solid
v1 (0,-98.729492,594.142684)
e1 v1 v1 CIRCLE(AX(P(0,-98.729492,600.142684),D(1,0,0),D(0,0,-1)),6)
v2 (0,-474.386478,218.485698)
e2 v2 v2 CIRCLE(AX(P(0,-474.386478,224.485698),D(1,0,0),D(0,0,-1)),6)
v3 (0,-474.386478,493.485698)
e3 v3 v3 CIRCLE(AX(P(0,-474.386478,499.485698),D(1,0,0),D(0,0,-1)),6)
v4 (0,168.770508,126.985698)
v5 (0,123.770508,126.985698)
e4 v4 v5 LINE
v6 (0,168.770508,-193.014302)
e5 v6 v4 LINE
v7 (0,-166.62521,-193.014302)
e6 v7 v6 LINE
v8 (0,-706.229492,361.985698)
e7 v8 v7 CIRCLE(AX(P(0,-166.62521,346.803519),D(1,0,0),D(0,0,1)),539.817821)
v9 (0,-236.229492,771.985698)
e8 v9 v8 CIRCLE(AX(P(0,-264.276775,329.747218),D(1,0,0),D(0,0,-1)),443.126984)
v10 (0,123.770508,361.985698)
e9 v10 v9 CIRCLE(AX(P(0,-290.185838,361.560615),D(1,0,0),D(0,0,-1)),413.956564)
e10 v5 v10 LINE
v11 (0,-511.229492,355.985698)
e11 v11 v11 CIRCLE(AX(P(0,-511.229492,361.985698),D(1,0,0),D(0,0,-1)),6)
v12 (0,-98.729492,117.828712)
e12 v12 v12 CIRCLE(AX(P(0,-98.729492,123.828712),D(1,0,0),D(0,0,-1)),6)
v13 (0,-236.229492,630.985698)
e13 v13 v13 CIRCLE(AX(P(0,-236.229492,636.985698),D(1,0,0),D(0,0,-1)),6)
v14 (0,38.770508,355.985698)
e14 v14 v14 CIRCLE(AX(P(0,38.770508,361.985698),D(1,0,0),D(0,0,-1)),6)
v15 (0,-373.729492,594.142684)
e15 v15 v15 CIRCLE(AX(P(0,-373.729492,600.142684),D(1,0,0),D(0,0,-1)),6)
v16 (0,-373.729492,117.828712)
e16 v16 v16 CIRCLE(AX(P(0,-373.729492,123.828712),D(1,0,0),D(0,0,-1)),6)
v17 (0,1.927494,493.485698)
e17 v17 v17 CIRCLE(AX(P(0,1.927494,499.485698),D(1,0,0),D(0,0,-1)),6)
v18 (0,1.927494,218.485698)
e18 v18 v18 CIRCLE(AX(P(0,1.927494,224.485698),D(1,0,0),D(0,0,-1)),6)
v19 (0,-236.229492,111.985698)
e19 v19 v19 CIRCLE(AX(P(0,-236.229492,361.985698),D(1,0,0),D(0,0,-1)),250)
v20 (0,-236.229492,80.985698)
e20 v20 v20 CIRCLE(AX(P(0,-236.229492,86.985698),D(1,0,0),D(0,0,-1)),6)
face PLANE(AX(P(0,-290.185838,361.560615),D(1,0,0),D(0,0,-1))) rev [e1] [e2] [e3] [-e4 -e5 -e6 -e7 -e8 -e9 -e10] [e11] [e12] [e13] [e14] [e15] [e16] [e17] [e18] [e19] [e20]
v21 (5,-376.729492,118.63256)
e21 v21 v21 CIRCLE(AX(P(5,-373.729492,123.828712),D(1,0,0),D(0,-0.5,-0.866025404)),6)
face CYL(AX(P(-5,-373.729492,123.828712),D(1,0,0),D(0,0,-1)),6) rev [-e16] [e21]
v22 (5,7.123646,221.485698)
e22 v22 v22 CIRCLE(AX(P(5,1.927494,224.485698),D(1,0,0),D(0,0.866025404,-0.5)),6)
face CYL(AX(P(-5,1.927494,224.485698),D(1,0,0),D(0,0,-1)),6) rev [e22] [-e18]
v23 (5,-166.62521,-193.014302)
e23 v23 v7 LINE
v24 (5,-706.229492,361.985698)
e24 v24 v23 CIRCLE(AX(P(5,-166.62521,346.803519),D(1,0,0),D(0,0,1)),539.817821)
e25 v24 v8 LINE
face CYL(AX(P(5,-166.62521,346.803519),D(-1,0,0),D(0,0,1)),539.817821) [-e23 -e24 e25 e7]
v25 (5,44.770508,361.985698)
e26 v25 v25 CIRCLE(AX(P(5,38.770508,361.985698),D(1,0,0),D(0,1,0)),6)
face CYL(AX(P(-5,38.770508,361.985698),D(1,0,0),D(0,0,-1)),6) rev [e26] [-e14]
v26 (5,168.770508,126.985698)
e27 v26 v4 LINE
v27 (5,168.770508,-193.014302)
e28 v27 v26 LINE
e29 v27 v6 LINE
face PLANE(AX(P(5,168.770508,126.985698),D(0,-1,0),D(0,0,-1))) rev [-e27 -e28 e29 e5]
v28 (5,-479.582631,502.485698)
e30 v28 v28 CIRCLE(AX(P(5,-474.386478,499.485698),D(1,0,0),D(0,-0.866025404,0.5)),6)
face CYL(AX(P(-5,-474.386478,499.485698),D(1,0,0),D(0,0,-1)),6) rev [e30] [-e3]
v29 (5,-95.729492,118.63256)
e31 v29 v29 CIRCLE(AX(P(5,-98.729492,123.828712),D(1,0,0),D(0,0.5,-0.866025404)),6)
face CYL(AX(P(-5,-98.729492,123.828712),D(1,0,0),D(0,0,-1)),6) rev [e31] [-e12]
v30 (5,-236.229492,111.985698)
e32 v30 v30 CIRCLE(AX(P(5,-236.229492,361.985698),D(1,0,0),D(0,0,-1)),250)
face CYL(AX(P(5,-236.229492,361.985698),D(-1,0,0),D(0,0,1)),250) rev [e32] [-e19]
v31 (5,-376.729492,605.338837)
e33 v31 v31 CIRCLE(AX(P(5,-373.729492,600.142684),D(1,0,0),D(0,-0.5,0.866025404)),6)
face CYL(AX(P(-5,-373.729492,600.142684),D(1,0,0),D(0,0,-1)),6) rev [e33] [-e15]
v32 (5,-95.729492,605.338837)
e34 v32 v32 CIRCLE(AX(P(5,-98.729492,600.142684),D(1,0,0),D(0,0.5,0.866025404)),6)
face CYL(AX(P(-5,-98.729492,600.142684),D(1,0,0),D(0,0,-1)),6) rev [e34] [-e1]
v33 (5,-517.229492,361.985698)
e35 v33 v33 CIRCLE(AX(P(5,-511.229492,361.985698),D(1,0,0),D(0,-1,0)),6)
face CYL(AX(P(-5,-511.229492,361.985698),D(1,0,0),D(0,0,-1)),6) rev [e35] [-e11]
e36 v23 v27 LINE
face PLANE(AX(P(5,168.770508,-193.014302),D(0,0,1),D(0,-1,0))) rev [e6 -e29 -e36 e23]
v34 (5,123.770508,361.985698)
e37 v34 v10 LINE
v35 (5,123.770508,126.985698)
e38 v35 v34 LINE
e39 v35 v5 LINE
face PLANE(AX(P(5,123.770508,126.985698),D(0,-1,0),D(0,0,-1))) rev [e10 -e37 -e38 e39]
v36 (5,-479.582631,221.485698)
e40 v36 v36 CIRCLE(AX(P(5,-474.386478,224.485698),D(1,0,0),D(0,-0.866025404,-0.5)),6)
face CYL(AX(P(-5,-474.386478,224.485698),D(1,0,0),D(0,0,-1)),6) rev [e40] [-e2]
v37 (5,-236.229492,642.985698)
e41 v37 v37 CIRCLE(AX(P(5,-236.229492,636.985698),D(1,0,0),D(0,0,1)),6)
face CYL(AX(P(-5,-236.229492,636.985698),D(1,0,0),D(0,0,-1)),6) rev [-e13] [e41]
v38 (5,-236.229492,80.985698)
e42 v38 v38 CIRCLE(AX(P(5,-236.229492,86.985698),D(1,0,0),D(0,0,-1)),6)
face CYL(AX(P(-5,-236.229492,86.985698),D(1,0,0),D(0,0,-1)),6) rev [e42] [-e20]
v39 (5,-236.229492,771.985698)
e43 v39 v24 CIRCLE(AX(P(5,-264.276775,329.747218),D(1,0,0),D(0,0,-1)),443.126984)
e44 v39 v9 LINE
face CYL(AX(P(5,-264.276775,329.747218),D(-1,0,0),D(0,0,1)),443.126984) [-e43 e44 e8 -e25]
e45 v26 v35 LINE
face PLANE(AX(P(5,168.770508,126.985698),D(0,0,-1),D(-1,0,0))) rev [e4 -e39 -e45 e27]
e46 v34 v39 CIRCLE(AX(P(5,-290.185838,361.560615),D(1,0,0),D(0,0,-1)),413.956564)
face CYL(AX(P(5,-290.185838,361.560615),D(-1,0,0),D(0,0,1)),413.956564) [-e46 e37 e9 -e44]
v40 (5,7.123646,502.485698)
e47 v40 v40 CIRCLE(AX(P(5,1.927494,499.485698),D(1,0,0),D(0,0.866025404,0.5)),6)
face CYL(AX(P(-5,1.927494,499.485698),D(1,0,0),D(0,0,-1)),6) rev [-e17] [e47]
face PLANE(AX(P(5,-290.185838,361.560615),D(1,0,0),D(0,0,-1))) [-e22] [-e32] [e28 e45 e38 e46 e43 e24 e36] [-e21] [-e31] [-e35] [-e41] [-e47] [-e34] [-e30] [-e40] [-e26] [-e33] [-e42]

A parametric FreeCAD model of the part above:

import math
import FreeCAD as App
import Part
import Sketcher

V = App.Vector
Q = App.Units.Quantity

doc = App.newDocument("Part")
body = doc.addObject("PartDesign::Body", "Body")

sketch1 = body.newObject("Sketcher::SketchObject", "Sketch")
sketch1.AttachmentSupport = (doc.getObject("YZ_Plane"), [""])
sketch1.MapMode = "FlatFace"
sketch1.addGeometry([
    Part.LineSegment(V(168.770508, -193.014302, 0), V(168.770508, 126.985698, 0)),
    Part.LineSegment(V(168.770508, 126.985698, 0), V(123.770508, 126.985698, 0)),
    Part.LineSegment(V(123.770508, 126.985698, 0), V(123.770508, 361.985698, 0)),
    Part.ArcOfCircle(Part.Circle(V(-290.185838, 361.560615, 0), V(0, 0, 1), 413.956564), math.radians(0.058836), math.radians(82.510586)),
    Part.ArcOfCircle(Part.Circle(V(-264.276775, 329.747218, 0), V(0, 0, 1), 443.126984), math.radians(86.371095), math.radians(175.827918)),
    Part.ArcOfCircle(Part.Circle(V(-166.62521, 346.803519, 0), V(0, 0, 1), 539.817821), math.radians(178.388365), math.radians(270)),
    Part.LineSegment(V(-166.62521, -193.014302, 0), V(168.770508, -193.014302, 0)),
    Part.Circle(V(-236.229492, 361.985698, 0), V(0, 0, 1), 250),
], False)
sketch1.addConstraint([
    Sketcher.Constraint("Coincident", 0, 2, 1, 1),
    Sketcher.Constraint("Coincident", 1, 2, 2, 1),
    Sketcher.Constraint("Coincident", 2, 2, 3, 1),
    Sketcher.Constraint("Coincident", 3, 2, 4, 1),
    Sketcher.Constraint("Coincident", 4, 2, 5, 1),
    Sketcher.Constraint("Tangent", 5, 2, 6, 1),
    Sketcher.Constraint("Coincident", 6, 2, 0, 1),
    Sketcher.Constraint("Vertical", 0),
    Sketcher.Constraint("Horizontal", 1),
    Sketcher.Constraint("Vertical", 2),
    Sketcher.Constraint("Horizontal", 6),
    Sketcher.Constraint("Horizontal", 7, 3, 2, 2),
    Sketcher.Constraint("Horizontal", 2, 2, 4, 2),
    Sketcher.Constraint("Vertical", 7, 3, 3, 2),
    Sketcher.Constraint("Diameter", 7, Q("500 mm")),
    Sketcher.Constraint("DistanceX", 1, 2, 1, 1, Q("45 mm")),
    Sketcher.Constraint("DistanceY", 0, 1, 0, 2, Q("320 mm")),
    Sketcher.Constraint("DistanceY", 2, 1, 2, 2, Q("235 mm")),
    Sketcher.Constraint("DistanceX", 7, 3, 0, 2, Q("405 mm")),
    Sketcher.Constraint("DistanceY", 7, 3, 3, 2, Q("410 mm")),
    Sketcher.Constraint("DistanceX", 4, 2, 7, 3, Q("470 mm")),
    Sketcher.Constraint("Radius", 5, Q("539.817821 mm")),
    Sketcher.Constraint("Radius", 3, Q("413.956564 mm")),
    Sketcher.Constraint("Radius", 4, Q("443.126984 mm")),
    Sketcher.Constraint("DistanceY", -1, 1, 7, 3, Q("361.985698 mm")),
    Sketcher.Constraint("DistanceX", 5, 3, -1, 1, Q("166.62521 mm")),
])
pad1 = body.newObject("PartDesign::Pad", "Pad")
pad1.Profile = sketch1
pad1.Length = 5

sketch2 = body.newObject("Sketcher::SketchObject", "Sketch001")
sketch2.AttachmentSupport = (doc.getObject("YZ_Plane"), [""])
sketch2.MapMode = "FlatFace"
sketch2.AttachmentOffset = App.Placement(V(0, 0, 5), App.Rotation())
sketch2.addGeometry(Part.Circle(V(-236.229492, 86.985698, 0), V(0, 0, 1), 6), False)
sketch2.addConstraint([
    Sketcher.Constraint("Diameter", 0, Q("12 mm")),
    Sketcher.Constraint("DistanceY", -1, 1, 0, 3, Q("86.985698 mm")),
    Sketcher.Constraint("DistanceX", 0, 3, -1, 1, Q("236.229492 mm")),
])
pocket1 = body.newObject("PartDesign::Pocket", "Pocket")
pocket1.Profile = sketch2
pocket1.Length = 10
doc.recompute()

datumline = body.newObject("PartDesign::Line", "DatumLine")
datumline.Placement = App.Placement(V(0, -236.229492, 361.985698), App.Rotation(V(0, 0, 1), V(1, 0, 0)))
polarpattern = body.newObject("PartDesign::PolarPattern", "PolarPattern")
polarpattern.Originals = [pocket1]
polarpattern.Axis = (datumline, [""])
polarpattern.Angle = 360
polarpattern.Occurrences = 12
body.Tip = polarpattern

doc.recompute()
